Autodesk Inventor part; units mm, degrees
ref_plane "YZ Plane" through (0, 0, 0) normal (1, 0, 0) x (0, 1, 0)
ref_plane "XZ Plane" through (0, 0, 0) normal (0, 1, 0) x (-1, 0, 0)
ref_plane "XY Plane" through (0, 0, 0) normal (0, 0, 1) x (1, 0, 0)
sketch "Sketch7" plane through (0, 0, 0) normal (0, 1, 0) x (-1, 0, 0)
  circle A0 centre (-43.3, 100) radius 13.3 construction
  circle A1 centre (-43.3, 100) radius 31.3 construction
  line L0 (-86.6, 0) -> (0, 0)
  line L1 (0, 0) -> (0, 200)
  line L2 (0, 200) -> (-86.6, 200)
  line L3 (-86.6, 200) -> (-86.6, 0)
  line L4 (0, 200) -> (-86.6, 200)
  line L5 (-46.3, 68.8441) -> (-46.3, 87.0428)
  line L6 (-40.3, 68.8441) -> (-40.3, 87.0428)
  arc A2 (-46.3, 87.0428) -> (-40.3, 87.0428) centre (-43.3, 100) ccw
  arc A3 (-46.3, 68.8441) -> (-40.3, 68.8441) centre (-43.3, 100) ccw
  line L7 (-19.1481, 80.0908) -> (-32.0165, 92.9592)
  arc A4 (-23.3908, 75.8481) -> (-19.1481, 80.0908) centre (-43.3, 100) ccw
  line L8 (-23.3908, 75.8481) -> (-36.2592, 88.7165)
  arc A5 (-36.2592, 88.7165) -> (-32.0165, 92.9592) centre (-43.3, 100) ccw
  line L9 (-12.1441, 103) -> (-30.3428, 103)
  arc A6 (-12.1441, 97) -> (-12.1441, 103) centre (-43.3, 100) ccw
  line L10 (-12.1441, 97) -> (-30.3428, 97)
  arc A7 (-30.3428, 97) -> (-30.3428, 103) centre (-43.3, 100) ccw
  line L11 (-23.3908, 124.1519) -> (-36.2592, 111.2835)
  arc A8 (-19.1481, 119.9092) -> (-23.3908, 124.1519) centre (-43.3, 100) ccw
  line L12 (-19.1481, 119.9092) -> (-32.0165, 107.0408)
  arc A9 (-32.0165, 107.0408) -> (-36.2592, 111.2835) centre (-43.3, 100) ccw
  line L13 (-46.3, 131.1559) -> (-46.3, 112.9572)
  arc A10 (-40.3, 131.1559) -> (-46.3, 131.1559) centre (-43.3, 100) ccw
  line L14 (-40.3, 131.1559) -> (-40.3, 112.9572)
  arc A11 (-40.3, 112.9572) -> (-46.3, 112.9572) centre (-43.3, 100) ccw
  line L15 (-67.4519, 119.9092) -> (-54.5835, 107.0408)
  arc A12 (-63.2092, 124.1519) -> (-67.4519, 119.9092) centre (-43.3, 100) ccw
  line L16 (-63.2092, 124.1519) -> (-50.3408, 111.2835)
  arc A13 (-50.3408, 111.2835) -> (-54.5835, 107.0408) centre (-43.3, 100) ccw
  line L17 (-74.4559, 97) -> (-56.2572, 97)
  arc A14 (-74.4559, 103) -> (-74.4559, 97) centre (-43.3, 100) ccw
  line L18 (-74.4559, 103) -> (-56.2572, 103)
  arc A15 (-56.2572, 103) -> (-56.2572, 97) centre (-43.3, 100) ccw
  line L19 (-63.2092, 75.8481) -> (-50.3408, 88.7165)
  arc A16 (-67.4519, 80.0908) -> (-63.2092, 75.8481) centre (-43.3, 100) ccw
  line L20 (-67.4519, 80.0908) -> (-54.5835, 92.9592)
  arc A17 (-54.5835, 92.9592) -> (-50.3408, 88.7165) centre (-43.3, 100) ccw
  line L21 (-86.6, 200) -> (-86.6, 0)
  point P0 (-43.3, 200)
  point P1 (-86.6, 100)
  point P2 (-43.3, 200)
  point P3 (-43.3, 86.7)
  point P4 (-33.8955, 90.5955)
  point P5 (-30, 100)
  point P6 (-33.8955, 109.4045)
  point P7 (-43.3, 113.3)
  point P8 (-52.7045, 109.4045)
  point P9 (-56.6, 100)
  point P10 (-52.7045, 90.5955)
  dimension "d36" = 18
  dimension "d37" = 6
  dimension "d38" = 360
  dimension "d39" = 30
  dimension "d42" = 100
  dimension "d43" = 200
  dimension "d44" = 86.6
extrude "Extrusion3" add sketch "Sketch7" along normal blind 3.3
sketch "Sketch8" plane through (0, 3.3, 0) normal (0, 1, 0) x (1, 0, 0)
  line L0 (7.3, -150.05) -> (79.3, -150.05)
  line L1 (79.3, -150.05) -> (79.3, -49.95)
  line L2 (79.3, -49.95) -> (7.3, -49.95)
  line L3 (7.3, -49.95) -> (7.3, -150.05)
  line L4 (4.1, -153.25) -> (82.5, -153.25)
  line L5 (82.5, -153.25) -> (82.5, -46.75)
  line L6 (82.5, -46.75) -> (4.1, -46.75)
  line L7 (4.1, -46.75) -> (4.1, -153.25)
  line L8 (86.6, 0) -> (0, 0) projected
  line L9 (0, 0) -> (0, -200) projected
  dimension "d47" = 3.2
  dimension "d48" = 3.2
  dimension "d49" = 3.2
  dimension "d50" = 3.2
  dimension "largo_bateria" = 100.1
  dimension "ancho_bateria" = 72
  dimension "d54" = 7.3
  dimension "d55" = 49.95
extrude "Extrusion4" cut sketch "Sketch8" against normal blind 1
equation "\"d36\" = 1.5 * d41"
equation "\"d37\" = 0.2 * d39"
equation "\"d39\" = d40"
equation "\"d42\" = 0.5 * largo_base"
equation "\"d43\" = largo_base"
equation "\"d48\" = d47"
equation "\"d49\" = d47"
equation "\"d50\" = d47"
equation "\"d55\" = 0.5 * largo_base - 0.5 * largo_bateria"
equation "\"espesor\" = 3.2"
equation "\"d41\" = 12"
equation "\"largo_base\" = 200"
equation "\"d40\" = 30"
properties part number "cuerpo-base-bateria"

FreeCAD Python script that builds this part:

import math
import FreeCAD as App
import Part
import Sketcher

doc = App.newDocument("Part")
body = doc.addObject("PartDesign::Body", "Body")

# Sketch on XZ plane
sketch1 = body.newObject("Sketcher::SketchObject", "Sketch")
sketch1.AttachmentSupport = (doc.getObject("XZ_Plane"), [""])
sketch1.MapMode = "FlatFace"
sketch1.addGeometry(Part.LineSegment(App.Vector(86.6, 200, 0), App.Vector(86.6, 0, 0)), False)
sketch1.addGeometry(Part.LineSegment(App.Vector(86.6, 0, 0), App.Vector(0, 0, 0)), False)
sketch1.addGeometry(Part.LineSegment(App.Vector(0, 0, 0), App.Vector(0, 200, 0)), False)
sketch1.addGeometry(Part.LineSegment(App.Vector(0, 200, 0), App.Vector(86.6, 200, 0)), False)
sketch1.addGeometry(Part.LineSegment(App.Vector(50.3408, 88.7165, 0), App.Vector(63.2092, 75.8481, 0)), False)
sketch1.addGeometry(Part.ArcOfCircle(Part.Circle(App.Vector(43.3, 100, 0), App.Vector(0, 0, 1), 31.300008), math.radians(-50.500127), math.radians(-39.499873)), False)
sketch1.addGeometry(Part.LineSegment(App.Vector(67.4519, 80.0908, 0), App.Vector(54.5835, 92.9592, 0)), False)
sketch1.addGeometry(Part.ArcOfCircle(Part.Circle(App.Vector(43.3, 100, 0), App.Vector(0, 0, 1), 13.300009), math.radians(-58.036217), math.radians(-31.963783)), False)
sketch1.addGeometry(Part.ArcOfCircle(Part.Circle(App.Vector(43.3, 100, 0), App.Vector(0, 0, 1), 31.300002), math.radians(-95.500051), math.radians(-84.499949)), False)
sketch1.addGeometry(Part.LineSegment(App.Vector(46.3, 68.8441, 0), App.Vector(46.3, 87.0428, 0)), False)
sketch1.addGeometry(Part.ArcOfCircle(Part.Circle(App.Vector(43.3, 100, 0), App.Vector(0, 0, 1), 13.299964), math.radians(-103.036077), math.radians(-76.963923)), False)
sketch1.addGeometry(Part.LineSegment(App.Vector(40.3, 87.0428, 0), App.Vector(40.3, 68.8441, 0)), False)
sketch1.addGeometry(Part.LineSegment(App.Vector(32.0165, 92.9592, 0), App.Vector(19.1481, 80.0908, 0)), False)
sketch1.addGeometry(Part.ArcOfCircle(Part.Circle(App.Vector(43.3, 100, 0), App.Vector(0, 0, 1), 31.300008), math.radians(-140.500127), math.radians(-129.499873)), False)
sketch1.addGeometry(Part.LineSegment(App.Vector(23.3908, 75.8481, 0), App.Vector(36.2592, 88.7165, 0)), False)
sketch1.addGeometry(Part.ArcOfCircle(Part.Circle(App.Vector(43.3, 100, 0), App.Vector(0, 0, 1), 13.300009), math.radians(-148.036217), math.radians(-121.963783)), False)
sketch1.addGeometry(Part.LineSegment(App.Vector(56.2572, 97, 0), App.Vector(74.4559, 97, 0)), False)
sketch1.addGeometry(Part.ArcOfCircle(Part.Circle(App.Vector(43.3, 100, 0), App.Vector(0, 0, 1), 31.300002), math.radians(-5.500051), math.radians(5.500051)), False)
sketch1.addGeometry(Part.LineSegment(App.Vector(74.4559, 103, 0), App.Vector(56.2572, 103, 0)), False)
sketch1.addGeometry(Part.ArcOfCircle(Part.Circle(App.Vector(43.3, 100, 0), App.Vector(0, 0, 1), 13.299964), math.radians(-13.036077), math.radians(13.036077)), False)
sketch1.addGeometry(Part.LineSegment(App.Vector(54.5835, 107.0408, 0), App.Vector(67.4519, 119.9092, 0)), False)
sketch1.addGeometry(Part.ArcOfCircle(Part.Circle(App.Vector(43.3, 100, 0), App.Vector(0, 0, 1), 31.300008), math.radians(39.499873), math.radians(50.500127)), False)
sketch1.addGeometry(Part.LineSegment(App.Vector(63.2092, 124.1519, 0), App.Vector(50.3408, 111.2835, 0)), False)
sketch1.addGeometry(Part.ArcOfCircle(Part.Circle(App.Vector(43.3, 100, 0), App.Vector(0, 0, 1), 13.300009), math.radians(31.963783), math.radians(58.036217)), False)
sketch1.addGeometry(Part.LineSegment(App.Vector(46.3, 112.9572, 0), App.Vector(46.3, 131.1559, 0)), False)
sketch1.addGeometry(Part.ArcOfCircle(Part.Circle(App.Vector(43.3, 100, 0), App.Vector(0, 0, 1), 31.300002), math.radians(84.499949), math.radians(95.500051)), False)
sketch1.addGeometry(Part.LineSegment(App.Vector(40.3, 131.1559, 0), App.Vector(40.3, 112.9572, 0)), False)
sketch1.addGeometry(Part.ArcOfCircle(Part.Circle(App.Vector(43.3, 100, 0), App.Vector(0, 0, 1), 13.299964), math.radians(76.963923), math.radians(103.036077)), False)
sketch1.addGeometry(Part.LineSegment(App.Vector(36.2592, 111.2835, 0), App.Vector(23.3908, 124.1519, 0)), False)
sketch1.addGeometry(Part.ArcOfCircle(Part.Circle(App.Vector(43.3, 100, 0), App.Vector(0, 0, 1), 31.300008), math.radians(129.499873), math.radians(140.500127)), False)
sketch1.addGeometry(Part.LineSegment(App.Vector(19.1481, 119.9092, 0), App.Vector(32.0165, 107.0408, 0)), False)
sketch1.addGeometry(Part.ArcOfCircle(Part.Circle(App.Vector(43.3, 100, 0), App.Vector(0, 0, 1), 13.300009), math.radians(121.963783), math.radians(148.036217)), False)
sketch1.addGeometry(Part.LineSegment(App.Vector(30.3428, 103, 0), App.Vector(12.1441, 103, 0)), False)
sketch1.addGeometry(Part.ArcOfCircle(Part.Circle(App.Vector(43.3, 100, 0), App.Vector(0, 0, 1), 31.300002), math.radians(174.499949), math.radians(185.500051)), False)
sketch1.addGeometry(Part.LineSegment(App.Vector(12.1441, 97, 0), App.Vector(30.3428, 97, 0)), False)
sketch1.addGeometry(Part.ArcOfCircle(Part.Circle(App.Vector(43.3, 100, 0), App.Vector(0, 0, 1), 13.299964), math.radians(166.963923), math.radians(193.036077)), False)
sketch1.addConstraint(Sketcher.Constraint("Coincident", 0, 2, 1, 1))
sketch1.addConstraint(Sketcher.Constraint("Coincident", 1, 2, 2, 1))
sketch1.addConstraint(Sketcher.Constraint("Coincident", 2, 2, 3, 1))
sketch1.addConstraint(Sketcher.Constraint("Coincident", 3, 2, 0, 1))
sketch1.addConstraint(Sketcher.Constraint("Coincident", 4, 2, 5, 1))
sketch1.addConstraint(Sketcher.Constraint("Coincident", 5, 2, 6, 1))
sketch1.addConstraint(Sketcher.Constraint("Coincident", 6, 2, 7, 2))
sketch1.addConstraint(Sketcher.Constraint("Coincident", 7, 1, 4, 1))
sketch1.addConstraint(Sketcher.Constraint("Coincident", 8, 2, 9, 1))
sketch1.addConstraint(Sketcher.Constraint("Coincident", 9, 2, 10, 2))
sketch1.addConstraint(Sketcher.Constraint("Coincident", 10, 1, 11, 1))
sketch1.addConstraint(Sketcher.Constraint("Coincident", 11, 2, 8, 1))
sketch1.addConstraint(Sketcher.Constraint("Coincident", 12, 2, 13, 1))
sketch1.addConstraint(Sketcher.Constraint("Coincident", 13, 2, 14, 1))
sketch1.addConstraint(Sketcher.Constraint("Coincident", 14, 2, 15, 2))
sketch1.addConstraint(Sketcher.Constraint("Coincident", 15, 1, 12, 1))
sketch1.addConstraint(Sketcher.Constraint("Coincident", 16, 2, 17, 1))
sketch1.addConstraint(Sketcher.Constraint("Coincident", 17, 2, 18, 1))
sketch1.addConstraint(Sketcher.Constraint("Coincident", 18, 2, 19, 2))
sketch1.addConstraint(Sketcher.Constraint("Coincident", 19, 1, 16, 1))
sketch1.addConstraint(Sketcher.Constraint("Coincident", 20, 2, 21, 1))
sketch1.addConstraint(Sketcher.Constraint("Coincident", 21, 2, 22, 1))
sketch1.addConstraint(Sketcher.Constraint("Coincident", 22, 2, 23, 2))
sketch1.addConstraint(Sketcher.Constraint("Coincident", 23, 1, 20, 1))
sketch1.addConstraint(Sketcher.Constraint("Coincident", 24, 2, 25, 1))
sketch1.addConstraint(Sketcher.Constraint("Coincident", 25, 2, 26, 1))
sketch1.addConstraint(Sketcher.Constraint("Coincident", 26, 2, 27, 2))
sketch1.addConstraint(Sketcher.Constraint("Coincident", 27, 1, 24, 1))
sketch1.addConstraint(Sketcher.Constraint("Coincident", 28, 2, 29, 1))
sketch1.addConstraint(Sketcher.Constraint("Coincident", 29, 2, 30, 1))
sketch1.addConstraint(Sketcher.Constraint("Coincident", 30, 2, 31, 2))
sketch1.addConstraint(Sketcher.Constraint("Coincident", 31, 1, 28, 1))
sketch1.addConstraint(Sketcher.Constraint("Coincident", 32, 2, 33, 1))
sketch1.addConstraint(Sketcher.Constraint("Coincident", 33, 2, 34, 1))
sketch1.addConstraint(Sketcher.Constraint("Coincident", 34, 2, 35, 2))
sketch1.addConstraint(Sketcher.Constraint("Coincident", 35, 1, 32, 1))
sketch1.addConstraint(Sketcher.Constraint("Vertical", 0))
sketch1.addConstraint(Sketcher.Constraint("Horizontal", 1))
sketch1.addConstraint(Sketcher.Constraint("Vertical", 2))
sketch1.addConstraint(Sketcher.Constraint("Horizontal", 3))
sketch1.addConstraint(Sketcher.Constraint("Vertical", 9))
sketch1.addConstraint(Sketcher.Constraint("Vertical", 11))
sketch1.addConstraint(Sketcher.Constraint("Horizontal", 16))
sketch1.addConstraint(Sketcher.Constraint("Horizontal", 18))
sketch1.addConstraint(Sketcher.Constraint("Vertical", 24))
sketch1.addConstraint(Sketcher.Constraint("Vertical", 26))
sketch1.addConstraint(Sketcher.Constraint("Horizontal", 32))
sketch1.addConstraint(Sketcher.Constraint("Horizontal", 34))
sketch1.addConstraint(Sketcher.Constraint("Coincident", 1, 2, -1, 1))
sketch1.addConstraint(Sketcher.Constraint("Coincident", 7, 3, 5, 3))
sketch1.addConstraint(Sketcher.Constraint("Coincident", 8, 3, 5, 3))
sketch1.addConstraint(Sketcher.Constraint("Coincident", 10, 3, 5, 3))
sketch1.addConstraint(Sketcher.Constraint("Coincident", 13, 3, 5, 3))
sketch1.addConstraint(Sketcher.Constraint("Coincident", 15, 3, 5, 3))
sketch1.addConstraint(Sketcher.Constraint("Coincident", 17, 3, 5, 3))
sketch1.addConstraint(Sketcher.Constraint("Coincident", 19, 3, 5, 3))
sketch1.addConstraint(Sketcher.Constraint("Coincident", 21, 3, 5, 3))
sketch1.addConstraint(Sketcher.Constraint("Coincident", 23, 3, 5, 3))
sketch1.addConstraint(Sketcher.Constraint("Coincident", 25, 3, 5, 3))
sketch1.addConstraint(Sketcher.Constraint("Coincident", 27, 3, 5, 3))
sketch1.addConstraint(Sketcher.Constraint("Coincident", 29, 3, 5, 3))
sketch1.addConstraint(Sketcher.Constraint("Coincident", 31, 3, 5, 3))
sketch1.addConstraint(Sketcher.Constraint("Coincident", 33, 3, 5, 3))
sketch1.addConstraint(Sketcher.Constraint("Coincident", 35, 3, 5, 3))
sketch1.addConstraint(Sketcher.Constraint("Equal", 5, 8))
sketch1.addConstraint(Sketcher.Constraint("Equal", 7, 10))
sketch1.addConstraint(Sketcher.Constraint("Equal", 8, 13))
sketch1.addConstraint(Sketcher.Constraint("Equal", 10, 15))
sketch1.addConstraint(Sketcher.Constraint("Equal", 13, 17))
sketch1.addConstraint(Sketcher.Constraint("Equal", 15, 19))
sketch1.addConstraint(Sketcher.Constraint("Equal", 17, 21))
sketch1.addConstraint(Sketcher.Constraint("Equal", 19, 23))
sketch1.addConstraint(Sketcher.Constraint("Equal", 21, 25))
sketch1.addConstraint(Sketcher.Constraint("Equal", 23, 27))
sketch1.addConstraint(Sketcher.Constraint("Equal", 25, 29))
sketch1.addConstraint(Sketcher.Constraint("Equal", 27, 31))
sketch1.addConstraint(Sketcher.Constraint("Equal", 29, 33))
sketch1.addConstraint(Sketcher.Constraint("Equal", 31, 35))
sketch1.addConstraint(Sketcher.Constraint("Parallel", 4, 6))
sketch1.addConstraint(Sketcher.Constraint("Perpendicular", 6, 12))
sketch1.addConstraint(Sketcher.Constraint("Parallel", 12, 14))
sketch1.addConstraint(Sketcher.Constraint("Parallel", 14, 20))
sketch1.addConstraint(Sketcher.Constraint("Parallel", 20, 22))
sketch1.addConstraint(Sketcher.Constraint("Perpendicular", 22, 28))
sketch1.addConstraint(Sketcher.Constraint("Parallel", 28, 30))
sketch1.addConstraint(Sketcher.Constraint("Horizontal", 9, 2, 10, 1))
sketch1.addConstraint(Sketcher.Constraint("Horizontal", 5, 2, 12, 2))
sketch1.addConstraint(Sketcher.Constraint("Horizontal", 4, 2, 13, 2))
sketch1.addConstraint(Sketcher.Constraint("Horizontal", 7, 1, 14, 2))
sketch1.addConstraint(Sketcher.Constraint("Horizontal", 24, 2, 25, 2))
sketch1.addConstraint(Sketcher.Constraint("Horizontal", 21, 2, 28, 2))
sketch1.addConstraint(Sketcher.Constraint("Horizontal", 20, 2, 29, 2))
sketch1.addConstraint(Sketcher.Constraint("Horizontal", 18, 2, 32, 2))
sketch1.addConstraint(Sketcher.Constraint("Horizontal", 19, 1, 33, 2))
sketch1.addConstraint(Sketcher.Constraint("Vertical", 16, 2, 17, 2))
sketch1.addConstraint(Sketcher.Constraint("Vertical", 5, 2, 20, 2))
sketch1.addConstraint(Sketcher.Constraint("Vertical", 4, 2, 21, 2))
sketch1.addConstraint(Sketcher.Constraint("Vertical", 9, 2, 24, 2))
sketch1.addConstraint(Sketcher.Constraint("Equal", 34, 9))
sketch1.addConstraint(Sketcher.Constraint("Equal", 4, 6))
sketch1.addConstraint(Sketcher.Constraint("DistanceY", 0, 2, 0, 1, 200.0))
sketch1.addConstraint(Sketcher.Constraint("DistanceX", 1, 2, 1, 1, 86.6))
sketch1.addConstraint(Sketcher.Constraint("DistanceY", -1, 1, 5, 3, 100.0))
sketch1.addConstraint(Sketcher.Constraint("DistanceX", 10, 1, 9, 2, 6.0))
sketch1.addConstraint(Sketcher.Constraint("Radius", 5, 31.3))
sketch1.addConstraint(Sketcher.Constraint("Radius", 7, 13.3))
sketch1.addConstraint(Sketcher.Constraint("DistanceX", -1, 1, 5, 3, 43.3))
sketch1.addConstraint(Sketcher.Constraint("DistanceY", 6, 2, 20, 2, 26.95))
pad1 = body.newObject("PartDesign::Pad", "Pad")
pad1.Profile = sketch1
pad1.Length = 3.3
pad1.Reversed = True

# Sketch on XZ plane
sketch2 = body.newObject("Sketcher::SketchObject", "Sketch001")
sketch2.AttachmentSupport = (doc.getObject("XZ_Plane"), [""])
sketch2.MapMode = "FlatFace"
sketch2.AttachmentOffset = App.Placement(App.Vector(0, 0, -3.3), App.Rotation())
sketch2.addGeometry(Part.LineSegment(App.Vector(4.1, 46.75, 0), App.Vector(4.1, 153.25, 0)), False)
sketch2.addGeometry(Part.LineSegment(App.Vector(4.1, 153.25, 0), App.Vector(82.5, 153.25, 0)), False)
sketch2.addGeometry(Part.LineSegment(App.Vector(82.5, 153.25, 0), App.Vector(82.5, 46.75, 0)), False)
sketch2.addGeometry(Part.LineSegment(App.Vector(82.5, 46.75, 0), App.Vector(4.1, 46.75, 0)), False)
sketch2.addGeometry(Part.LineSegment(App.Vector(79.3, 150.05, 0), App.Vector(7.3, 150.05, 0)), False)
sketch2.addGeometry(Part.LineSegment(App.Vector(7.3, 150.05, 0), App.Vector(7.3, 49.95, 0)), False)
sketch2.addGeometry(Part.LineSegment(App.Vector(7.3, 49.95, 0), App.Vector(79.3, 49.95, 0)), False)
sketch2.addGeometry(Part.LineSegment(App.Vector(79.3, 49.95, 0), App.Vector(79.3, 150.05, 0)), False)
sketch2.addConstraint(Sketcher.Constraint("Coincident", 0, 2, 1, 1))
sketch2.addConstraint(Sketcher.Constraint("Coincident", 1, 2, 2, 1))
sketch2.addConstraint(Sketcher.Constraint("Coincident", 2, 2, 3, 1))
sketch2.addConstraint(Sketcher.Constraint("Coincident", 3, 2, 0, 1))
sketch2.addConstraint(Sketcher.Constraint("Coincident", 4, 2, 5, 1))
sketch2.addConstraint(Sketcher.Constraint("Coincident", 5, 2, 6, 1))
sketch2.addConstraint(Sketcher.Constraint("Coincident", 6, 2, 7, 1))
sketch2.addConstraint(Sketcher.Constraint("Coincident", 7, 2, 4, 1))
sketch2.addConstraint(Sketcher.Constraint("Vertical", 0))
sketch2.addConstraint(Sketcher.Constraint("Horizontal", 1))
sketch2.addConstraint(Sketcher.Constraint("Vertical", 2))
sketch2.addConstraint(Sketcher.Constraint("Horizontal", 3))
sketch2.addConstraint(Sketcher.Constraint("Horizontal", 4))
sketch2.addConstraint(Sketcher.Constraint("Vertical", 5))
sketch2.addConstraint(Sketcher.Constraint("Horizontal", 6))
sketch2.addConstraint(Sketcher.Constraint("Vertical", 7))
sketch2.addConstraint(Sketcher.Constraint("DistanceX", 4, 2, 4, 1, 72.0))
sketch2.addConstraint(Sketcher.Constraint("DistanceY", 5, 2, 5, 1, 100.1))
sketch2.addConstraint(Sketcher.Constraint("DistanceX", -1, 1, 4, 2, 7.3))
sketch2.addConstraint(Sketcher.Constraint("DistanceX", 0, 2, 4, 2, 3.2))
sketch2.addConstraint(Sketcher.Constraint("DistanceY", 4, 2, 0, 2, 3.2))
sketch2.addConstraint(Sketcher.Constraint("DistanceY", 3, 2, 5, 2, 3.2))
sketch2.addConstraint(Sketcher.Constraint("DistanceX", 6, 2, 2, 2, 3.2))
sketch2.addConstraint(Sketcher.Constraint("DistanceY", -1, 1, 5, 2, 49.95))
pocket1 = body.newObject("PartDesign::Pocket", "Pocket")
pocket1.Profile = sketch2
pocket1.Length = 1
pocket1.Reversed = True

doc.recompute()
